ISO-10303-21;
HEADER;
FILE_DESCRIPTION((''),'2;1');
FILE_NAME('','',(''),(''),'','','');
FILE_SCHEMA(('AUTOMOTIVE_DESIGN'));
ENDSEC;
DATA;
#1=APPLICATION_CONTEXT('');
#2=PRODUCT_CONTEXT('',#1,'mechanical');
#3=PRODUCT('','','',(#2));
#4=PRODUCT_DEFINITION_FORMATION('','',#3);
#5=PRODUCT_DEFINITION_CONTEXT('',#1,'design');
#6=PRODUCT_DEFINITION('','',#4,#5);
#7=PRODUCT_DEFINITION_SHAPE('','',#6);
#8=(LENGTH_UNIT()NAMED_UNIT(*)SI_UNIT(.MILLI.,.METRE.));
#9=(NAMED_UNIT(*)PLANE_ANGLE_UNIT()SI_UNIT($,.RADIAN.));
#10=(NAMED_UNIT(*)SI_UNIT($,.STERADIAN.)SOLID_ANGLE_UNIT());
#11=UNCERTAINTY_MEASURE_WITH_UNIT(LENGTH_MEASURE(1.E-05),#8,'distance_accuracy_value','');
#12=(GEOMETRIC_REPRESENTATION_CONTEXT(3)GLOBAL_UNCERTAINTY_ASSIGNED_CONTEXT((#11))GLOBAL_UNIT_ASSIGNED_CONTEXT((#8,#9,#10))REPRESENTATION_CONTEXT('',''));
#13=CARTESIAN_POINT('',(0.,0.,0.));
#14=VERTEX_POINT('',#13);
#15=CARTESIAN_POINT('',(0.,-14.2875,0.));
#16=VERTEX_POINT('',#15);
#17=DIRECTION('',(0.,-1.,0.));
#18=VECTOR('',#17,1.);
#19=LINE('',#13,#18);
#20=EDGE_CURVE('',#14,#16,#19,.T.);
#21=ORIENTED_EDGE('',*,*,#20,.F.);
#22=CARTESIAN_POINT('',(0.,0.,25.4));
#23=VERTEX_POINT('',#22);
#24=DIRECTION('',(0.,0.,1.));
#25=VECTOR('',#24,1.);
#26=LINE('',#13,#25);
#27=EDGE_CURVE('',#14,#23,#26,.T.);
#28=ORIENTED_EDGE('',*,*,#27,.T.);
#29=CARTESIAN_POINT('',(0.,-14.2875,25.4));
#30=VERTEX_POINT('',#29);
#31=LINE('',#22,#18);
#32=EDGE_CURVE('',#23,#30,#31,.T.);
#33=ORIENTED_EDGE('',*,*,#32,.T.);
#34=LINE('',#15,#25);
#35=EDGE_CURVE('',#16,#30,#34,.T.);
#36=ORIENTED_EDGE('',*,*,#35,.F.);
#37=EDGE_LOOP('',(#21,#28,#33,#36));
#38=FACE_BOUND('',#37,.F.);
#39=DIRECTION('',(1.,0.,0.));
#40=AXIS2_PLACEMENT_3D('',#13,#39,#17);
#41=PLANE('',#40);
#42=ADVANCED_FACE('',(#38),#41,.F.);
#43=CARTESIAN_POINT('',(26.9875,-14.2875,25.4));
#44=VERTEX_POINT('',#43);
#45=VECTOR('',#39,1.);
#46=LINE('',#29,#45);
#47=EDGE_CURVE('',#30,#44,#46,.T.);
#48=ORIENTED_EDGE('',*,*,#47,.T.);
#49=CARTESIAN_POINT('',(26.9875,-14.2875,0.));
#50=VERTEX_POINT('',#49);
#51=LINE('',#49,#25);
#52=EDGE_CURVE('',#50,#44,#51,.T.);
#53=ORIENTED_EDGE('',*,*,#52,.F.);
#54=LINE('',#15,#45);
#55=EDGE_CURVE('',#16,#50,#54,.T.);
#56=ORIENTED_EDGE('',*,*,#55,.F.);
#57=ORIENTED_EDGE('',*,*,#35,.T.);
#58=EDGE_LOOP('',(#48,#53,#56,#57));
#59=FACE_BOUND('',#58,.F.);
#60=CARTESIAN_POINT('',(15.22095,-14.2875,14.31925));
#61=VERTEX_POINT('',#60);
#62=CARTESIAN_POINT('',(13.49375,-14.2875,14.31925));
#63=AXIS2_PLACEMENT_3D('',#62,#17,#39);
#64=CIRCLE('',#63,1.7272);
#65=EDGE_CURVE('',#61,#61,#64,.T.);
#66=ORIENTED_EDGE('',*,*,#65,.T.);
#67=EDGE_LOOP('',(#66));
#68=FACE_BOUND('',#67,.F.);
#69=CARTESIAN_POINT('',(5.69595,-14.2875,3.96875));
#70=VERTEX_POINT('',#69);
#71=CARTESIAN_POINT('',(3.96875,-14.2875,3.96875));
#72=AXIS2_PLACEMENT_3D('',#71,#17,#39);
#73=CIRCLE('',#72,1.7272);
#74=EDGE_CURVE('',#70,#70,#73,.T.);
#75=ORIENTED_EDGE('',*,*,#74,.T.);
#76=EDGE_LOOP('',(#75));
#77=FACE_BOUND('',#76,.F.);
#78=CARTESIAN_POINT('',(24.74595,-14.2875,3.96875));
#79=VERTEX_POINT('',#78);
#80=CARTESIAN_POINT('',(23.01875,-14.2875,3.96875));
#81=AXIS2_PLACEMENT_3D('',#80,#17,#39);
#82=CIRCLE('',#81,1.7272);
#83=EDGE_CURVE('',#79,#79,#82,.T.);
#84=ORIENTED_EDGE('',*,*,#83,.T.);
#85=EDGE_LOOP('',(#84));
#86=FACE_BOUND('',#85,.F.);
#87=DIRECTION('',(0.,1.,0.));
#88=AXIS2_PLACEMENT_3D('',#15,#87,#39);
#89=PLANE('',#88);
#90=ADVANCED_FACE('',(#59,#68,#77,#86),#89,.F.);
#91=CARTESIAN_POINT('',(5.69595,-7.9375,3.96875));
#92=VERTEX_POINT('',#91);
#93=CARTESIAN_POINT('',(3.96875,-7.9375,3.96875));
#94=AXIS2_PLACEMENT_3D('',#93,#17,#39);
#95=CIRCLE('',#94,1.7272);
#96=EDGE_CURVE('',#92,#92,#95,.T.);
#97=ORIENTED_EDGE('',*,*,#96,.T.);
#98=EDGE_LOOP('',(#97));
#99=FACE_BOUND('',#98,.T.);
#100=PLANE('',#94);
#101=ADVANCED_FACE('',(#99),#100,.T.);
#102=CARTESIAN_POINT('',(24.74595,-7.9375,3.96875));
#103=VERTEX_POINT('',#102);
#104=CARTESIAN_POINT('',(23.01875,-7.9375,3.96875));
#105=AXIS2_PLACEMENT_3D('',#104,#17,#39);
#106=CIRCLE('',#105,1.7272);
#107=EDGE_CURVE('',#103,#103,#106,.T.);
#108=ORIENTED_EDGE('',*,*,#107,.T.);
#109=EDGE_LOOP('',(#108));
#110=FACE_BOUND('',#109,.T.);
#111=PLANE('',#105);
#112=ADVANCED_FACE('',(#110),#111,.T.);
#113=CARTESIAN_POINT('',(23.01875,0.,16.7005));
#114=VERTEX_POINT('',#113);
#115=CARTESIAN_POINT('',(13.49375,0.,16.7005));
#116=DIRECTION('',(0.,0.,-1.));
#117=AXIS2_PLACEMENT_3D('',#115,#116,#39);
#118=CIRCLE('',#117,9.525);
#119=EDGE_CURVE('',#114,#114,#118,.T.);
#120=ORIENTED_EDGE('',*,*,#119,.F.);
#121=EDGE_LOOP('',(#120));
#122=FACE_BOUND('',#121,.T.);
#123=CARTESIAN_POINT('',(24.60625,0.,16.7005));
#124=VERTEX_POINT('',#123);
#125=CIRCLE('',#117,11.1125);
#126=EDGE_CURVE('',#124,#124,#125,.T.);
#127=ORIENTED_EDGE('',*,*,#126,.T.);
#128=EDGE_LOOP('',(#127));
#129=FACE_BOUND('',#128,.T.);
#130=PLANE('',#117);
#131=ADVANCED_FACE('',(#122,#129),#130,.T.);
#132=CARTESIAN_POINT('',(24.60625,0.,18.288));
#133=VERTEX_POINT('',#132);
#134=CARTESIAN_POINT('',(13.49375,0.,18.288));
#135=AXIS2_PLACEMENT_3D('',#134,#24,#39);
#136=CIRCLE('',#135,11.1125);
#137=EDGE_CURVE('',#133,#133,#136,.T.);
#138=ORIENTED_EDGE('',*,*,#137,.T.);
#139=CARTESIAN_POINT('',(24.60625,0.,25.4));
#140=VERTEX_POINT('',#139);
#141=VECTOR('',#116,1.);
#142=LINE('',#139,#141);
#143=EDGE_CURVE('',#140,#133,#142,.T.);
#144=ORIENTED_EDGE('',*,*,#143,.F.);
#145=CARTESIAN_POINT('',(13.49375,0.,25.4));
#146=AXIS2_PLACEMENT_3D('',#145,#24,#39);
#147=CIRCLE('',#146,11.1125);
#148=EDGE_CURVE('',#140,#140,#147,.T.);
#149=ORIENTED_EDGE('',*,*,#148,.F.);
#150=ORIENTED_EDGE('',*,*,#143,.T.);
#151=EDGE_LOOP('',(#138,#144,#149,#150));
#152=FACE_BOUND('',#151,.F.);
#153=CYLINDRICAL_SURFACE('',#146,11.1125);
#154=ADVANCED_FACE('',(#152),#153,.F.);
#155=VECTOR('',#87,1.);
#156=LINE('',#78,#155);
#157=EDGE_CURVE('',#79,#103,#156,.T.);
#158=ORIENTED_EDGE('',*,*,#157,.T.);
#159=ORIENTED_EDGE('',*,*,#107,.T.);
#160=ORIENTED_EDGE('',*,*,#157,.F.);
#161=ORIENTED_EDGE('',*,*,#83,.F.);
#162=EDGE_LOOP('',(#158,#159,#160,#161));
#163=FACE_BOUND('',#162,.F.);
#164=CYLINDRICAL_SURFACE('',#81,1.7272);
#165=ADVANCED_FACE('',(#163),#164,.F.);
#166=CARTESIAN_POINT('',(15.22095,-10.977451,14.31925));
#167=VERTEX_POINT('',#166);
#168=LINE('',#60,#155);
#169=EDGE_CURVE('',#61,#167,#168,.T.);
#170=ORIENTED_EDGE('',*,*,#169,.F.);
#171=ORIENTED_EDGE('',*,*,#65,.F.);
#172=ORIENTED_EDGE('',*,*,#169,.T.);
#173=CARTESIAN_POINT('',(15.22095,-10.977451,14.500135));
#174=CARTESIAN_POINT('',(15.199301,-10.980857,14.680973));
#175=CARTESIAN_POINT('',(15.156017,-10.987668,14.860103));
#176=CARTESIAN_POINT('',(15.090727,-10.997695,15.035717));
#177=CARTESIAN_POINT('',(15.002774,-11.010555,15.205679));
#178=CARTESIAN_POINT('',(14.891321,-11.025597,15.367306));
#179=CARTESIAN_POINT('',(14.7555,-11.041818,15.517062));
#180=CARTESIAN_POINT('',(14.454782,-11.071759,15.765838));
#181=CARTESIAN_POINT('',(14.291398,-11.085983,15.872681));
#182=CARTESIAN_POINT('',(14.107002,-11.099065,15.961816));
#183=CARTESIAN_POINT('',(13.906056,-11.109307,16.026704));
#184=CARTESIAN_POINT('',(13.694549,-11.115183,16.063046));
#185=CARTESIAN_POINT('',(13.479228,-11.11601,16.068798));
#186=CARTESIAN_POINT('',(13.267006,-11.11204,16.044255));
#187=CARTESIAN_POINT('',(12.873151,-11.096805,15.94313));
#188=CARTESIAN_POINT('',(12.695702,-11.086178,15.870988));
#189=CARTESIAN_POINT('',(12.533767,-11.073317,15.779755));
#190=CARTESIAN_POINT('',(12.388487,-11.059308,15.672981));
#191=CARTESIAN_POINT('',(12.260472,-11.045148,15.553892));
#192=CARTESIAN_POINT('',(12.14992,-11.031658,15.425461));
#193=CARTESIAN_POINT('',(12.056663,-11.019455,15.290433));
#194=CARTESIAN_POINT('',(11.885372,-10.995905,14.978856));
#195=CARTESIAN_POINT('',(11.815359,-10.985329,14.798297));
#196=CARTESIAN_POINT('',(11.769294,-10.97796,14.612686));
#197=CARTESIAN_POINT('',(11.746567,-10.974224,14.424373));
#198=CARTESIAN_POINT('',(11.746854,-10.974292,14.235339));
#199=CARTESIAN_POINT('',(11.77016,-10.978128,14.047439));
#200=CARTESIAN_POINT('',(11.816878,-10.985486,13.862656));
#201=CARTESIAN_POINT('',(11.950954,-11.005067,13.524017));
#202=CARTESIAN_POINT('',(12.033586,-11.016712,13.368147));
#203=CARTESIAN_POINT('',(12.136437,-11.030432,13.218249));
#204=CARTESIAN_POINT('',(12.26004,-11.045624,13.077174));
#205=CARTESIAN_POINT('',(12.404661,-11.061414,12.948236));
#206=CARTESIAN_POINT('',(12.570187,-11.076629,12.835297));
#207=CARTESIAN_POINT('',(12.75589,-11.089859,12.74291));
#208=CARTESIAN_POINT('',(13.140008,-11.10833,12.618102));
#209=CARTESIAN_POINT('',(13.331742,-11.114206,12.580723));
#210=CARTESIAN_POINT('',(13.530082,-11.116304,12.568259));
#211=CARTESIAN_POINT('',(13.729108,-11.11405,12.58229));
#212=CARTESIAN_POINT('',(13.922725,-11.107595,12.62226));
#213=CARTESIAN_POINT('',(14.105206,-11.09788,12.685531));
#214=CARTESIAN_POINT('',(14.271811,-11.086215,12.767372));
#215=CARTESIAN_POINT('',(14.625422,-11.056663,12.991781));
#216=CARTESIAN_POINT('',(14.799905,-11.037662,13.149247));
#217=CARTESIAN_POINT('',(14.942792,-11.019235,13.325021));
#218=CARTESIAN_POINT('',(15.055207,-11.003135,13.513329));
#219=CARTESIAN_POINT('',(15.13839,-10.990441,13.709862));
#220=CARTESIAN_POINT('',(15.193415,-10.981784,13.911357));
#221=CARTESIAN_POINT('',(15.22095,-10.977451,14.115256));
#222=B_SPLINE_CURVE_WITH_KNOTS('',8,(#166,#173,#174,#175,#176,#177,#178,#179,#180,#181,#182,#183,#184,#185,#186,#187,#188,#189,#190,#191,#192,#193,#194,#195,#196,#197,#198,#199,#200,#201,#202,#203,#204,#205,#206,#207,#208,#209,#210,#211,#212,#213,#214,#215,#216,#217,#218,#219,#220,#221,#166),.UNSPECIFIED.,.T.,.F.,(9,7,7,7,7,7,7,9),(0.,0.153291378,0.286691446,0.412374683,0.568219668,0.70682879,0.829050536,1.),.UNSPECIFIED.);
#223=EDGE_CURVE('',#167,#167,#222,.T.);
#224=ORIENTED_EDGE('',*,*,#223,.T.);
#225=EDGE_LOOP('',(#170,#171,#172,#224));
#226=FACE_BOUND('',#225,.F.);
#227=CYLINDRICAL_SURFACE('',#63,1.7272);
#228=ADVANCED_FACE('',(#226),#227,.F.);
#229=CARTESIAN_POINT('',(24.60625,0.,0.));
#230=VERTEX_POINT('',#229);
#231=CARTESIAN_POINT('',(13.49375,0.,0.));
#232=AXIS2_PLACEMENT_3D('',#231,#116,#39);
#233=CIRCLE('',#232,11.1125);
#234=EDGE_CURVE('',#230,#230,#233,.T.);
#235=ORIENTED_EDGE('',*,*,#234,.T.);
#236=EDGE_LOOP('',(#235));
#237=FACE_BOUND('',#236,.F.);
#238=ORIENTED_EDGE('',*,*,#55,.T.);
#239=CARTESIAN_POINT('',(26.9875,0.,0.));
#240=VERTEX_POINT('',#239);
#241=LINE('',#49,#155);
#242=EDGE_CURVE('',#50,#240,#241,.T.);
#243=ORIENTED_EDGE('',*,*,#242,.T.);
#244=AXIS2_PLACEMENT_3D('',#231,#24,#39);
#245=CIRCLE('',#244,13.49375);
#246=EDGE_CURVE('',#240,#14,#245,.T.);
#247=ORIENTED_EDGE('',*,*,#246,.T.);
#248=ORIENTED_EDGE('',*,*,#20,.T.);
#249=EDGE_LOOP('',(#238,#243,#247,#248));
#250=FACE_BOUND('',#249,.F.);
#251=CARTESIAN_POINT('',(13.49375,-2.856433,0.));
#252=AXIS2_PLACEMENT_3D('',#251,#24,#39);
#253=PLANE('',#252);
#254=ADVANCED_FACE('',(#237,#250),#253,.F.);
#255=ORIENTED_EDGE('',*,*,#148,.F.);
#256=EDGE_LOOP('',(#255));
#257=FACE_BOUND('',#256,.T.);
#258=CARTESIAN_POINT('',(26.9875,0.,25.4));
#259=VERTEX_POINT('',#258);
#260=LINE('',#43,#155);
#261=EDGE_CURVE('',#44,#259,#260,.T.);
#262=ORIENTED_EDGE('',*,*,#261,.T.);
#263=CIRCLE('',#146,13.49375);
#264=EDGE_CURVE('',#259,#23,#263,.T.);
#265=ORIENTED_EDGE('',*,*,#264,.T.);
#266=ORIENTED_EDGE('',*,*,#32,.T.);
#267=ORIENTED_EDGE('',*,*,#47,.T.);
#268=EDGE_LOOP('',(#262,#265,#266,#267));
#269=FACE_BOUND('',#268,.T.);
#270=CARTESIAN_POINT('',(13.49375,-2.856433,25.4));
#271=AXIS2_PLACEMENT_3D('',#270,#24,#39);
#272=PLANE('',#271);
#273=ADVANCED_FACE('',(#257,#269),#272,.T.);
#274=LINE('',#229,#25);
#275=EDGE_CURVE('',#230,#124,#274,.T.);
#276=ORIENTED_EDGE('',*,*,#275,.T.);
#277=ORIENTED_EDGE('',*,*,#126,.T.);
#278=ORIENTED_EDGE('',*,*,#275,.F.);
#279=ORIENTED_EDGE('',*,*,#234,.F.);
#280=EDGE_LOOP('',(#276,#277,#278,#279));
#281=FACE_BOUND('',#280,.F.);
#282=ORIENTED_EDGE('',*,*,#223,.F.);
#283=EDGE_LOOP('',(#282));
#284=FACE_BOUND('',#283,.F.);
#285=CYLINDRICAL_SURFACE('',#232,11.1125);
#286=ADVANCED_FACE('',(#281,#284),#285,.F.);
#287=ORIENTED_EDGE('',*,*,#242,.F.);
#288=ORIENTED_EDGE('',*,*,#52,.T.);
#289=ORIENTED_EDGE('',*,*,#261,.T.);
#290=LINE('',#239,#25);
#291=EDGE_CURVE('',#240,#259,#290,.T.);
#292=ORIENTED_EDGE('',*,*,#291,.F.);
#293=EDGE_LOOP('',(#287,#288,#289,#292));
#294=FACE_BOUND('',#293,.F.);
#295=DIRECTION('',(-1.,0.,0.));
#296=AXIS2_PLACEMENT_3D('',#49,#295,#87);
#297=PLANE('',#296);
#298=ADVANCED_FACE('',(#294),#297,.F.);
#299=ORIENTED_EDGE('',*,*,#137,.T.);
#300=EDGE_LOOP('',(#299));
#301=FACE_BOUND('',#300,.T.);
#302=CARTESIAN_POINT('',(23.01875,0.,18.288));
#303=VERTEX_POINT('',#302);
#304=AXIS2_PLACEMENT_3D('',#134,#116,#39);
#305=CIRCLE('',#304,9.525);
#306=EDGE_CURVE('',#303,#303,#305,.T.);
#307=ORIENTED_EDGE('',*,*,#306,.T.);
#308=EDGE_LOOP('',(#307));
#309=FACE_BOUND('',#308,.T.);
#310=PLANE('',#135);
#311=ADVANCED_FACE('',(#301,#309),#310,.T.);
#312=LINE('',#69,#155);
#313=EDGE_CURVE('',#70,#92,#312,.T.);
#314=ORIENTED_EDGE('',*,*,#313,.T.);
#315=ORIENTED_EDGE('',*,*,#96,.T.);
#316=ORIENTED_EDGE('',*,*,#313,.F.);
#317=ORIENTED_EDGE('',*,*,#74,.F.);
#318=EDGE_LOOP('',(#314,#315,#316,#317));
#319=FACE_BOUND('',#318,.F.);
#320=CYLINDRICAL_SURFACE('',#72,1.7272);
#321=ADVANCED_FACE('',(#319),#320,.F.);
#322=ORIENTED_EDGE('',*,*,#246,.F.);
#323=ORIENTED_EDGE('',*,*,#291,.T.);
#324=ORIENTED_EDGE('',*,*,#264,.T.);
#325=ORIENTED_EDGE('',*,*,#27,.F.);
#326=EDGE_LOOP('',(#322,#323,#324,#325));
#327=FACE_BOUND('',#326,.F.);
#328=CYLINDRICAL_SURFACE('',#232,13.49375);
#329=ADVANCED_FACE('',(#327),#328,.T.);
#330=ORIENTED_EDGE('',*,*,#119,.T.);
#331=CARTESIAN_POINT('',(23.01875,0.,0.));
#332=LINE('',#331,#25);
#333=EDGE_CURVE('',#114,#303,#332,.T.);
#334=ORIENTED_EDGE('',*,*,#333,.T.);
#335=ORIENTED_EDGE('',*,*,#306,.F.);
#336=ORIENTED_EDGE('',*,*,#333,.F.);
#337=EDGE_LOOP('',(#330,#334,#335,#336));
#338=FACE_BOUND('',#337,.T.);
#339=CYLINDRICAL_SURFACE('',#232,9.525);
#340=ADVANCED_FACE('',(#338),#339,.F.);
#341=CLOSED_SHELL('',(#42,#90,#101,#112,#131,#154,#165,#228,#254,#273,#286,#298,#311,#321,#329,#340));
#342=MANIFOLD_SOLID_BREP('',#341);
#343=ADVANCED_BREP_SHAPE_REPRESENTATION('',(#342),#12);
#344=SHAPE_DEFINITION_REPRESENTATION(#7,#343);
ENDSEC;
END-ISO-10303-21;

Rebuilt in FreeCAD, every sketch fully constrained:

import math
import FreeCAD as App
import Part
import Sketcher
from FreeCAD import Vector
Q = App.Units.Quantity

doc = App.newDocument("Part")
body = doc.addObject("PartDesign::Body", "Body")

# Sketch on XY plane
sketch1 = body.newObject("Sketcher::SketchObject", "Sketch")
sketch1.AttachmentSupport = (doc.getObject("XY_Plane"), [""])
sketch1.MapMode = "FlatFace"
sketch1.addGeometry([
    Part.LineSegment(Vector(0, 0, 0), Vector(0, -14, 0)),  # 0
    Part.LineSegment(Vector(0, -14, 0), Vector(27, -14, 0)),  # 1
    Part.LineSegment(Vector(27, -14, 0), Vector(27, 0, 0)),  # 2
    Part.ArcOfCircle(Part.Circle(Vector(13, 0, 0), Vector(0, 0, 1), 13), math.radians(0), math.radians(180)),  # 3
    Part.Circle(Vector(13, 0, 0), Vector(0, 0, 1), 10),  # 4
], False)
sketch1.addConstraint([
    Sketcher.Constraint("Coincident", 0, 2, 1, 1),
    Sketcher.Constraint("Coincident", 1, 2, 2, 1),
    Sketcher.Constraint("Tangent", 2, 2, 3, 1),
    Sketcher.Constraint("Tangent", 3, 2, 0, 1),
    Sketcher.Constraint("Vertical", 0),
    Sketcher.Constraint("Horizontal", 1),
    Sketcher.Constraint("Vertical", 2),
    Sketcher.Constraint("Coincident", 3, 2, -1, 1),
    Sketcher.Constraint("Coincident", 4, 3, 3, 3),
    Sketcher.Constraint("Diameter", 4, Q("0.75 in")),
    Sketcher.Constraint("Radius", 3, Q("0.53125 in")),
    Sketcher.Constraint("DistanceY", 0, 2, 0, 1, Q("0.5625 in")),
])
pad1 = body.newObject("PartDesign::Pad", "Pad")
pad1.Profile = sketch1
pad1.Length = Q("1 in")

# Sketch on XY plane
sketch2 = body.newObject("Sketcher::SketchObject", "Sketch001")
sketch2.AttachmentSupport = (doc.getObject("XY_Plane"), [""])
sketch2.MapMode = "FlatFace"
sketch2.AttachmentOffset = App.Placement(Vector(0, 0, 1 * 25.4), App.Rotation())
sketch2.addGeometry(Part.Circle(Vector(13, 0, 0), Vector(0, 0, 1), 11), False)
sketch2.addConstraint([
    Sketcher.Constraint("PointOnObject", 0, 3, -1),
    Sketcher.Constraint("Diameter", 0, Q("0.875 in")),
    Sketcher.Constraint("DistanceX", -1, 1, 0, 3, Q("0.53125 in")),
])
pocket1 = body.newObject("PartDesign::Pocket", "Pocket")
pocket1.Profile = sketch2
pocket1.Length = Q("0.28 in")

# Sketch on XY plane
sketch3 = body.newObject("Sketcher::SketchObject", "Sketch002")
sketch3.AttachmentSupport = (doc.getObject("XY_Plane"), [""])
sketch3.MapMode = "FlatFace"
sketch3.addGeometry(Part.Circle(Vector(13, 0, 0), Vector(0, 0, 1), 11), False)
sketch3.addConstraint([
    Sketcher.Constraint("PointOnObject", 0, 3, -1),
    Sketcher.Constraint("Diameter", 0, Q("0.875 in")),
    Sketcher.Constraint("DistanceX", -1, 1, 0, 3, Q("0.53125 in")),
])
pocket2 = body.newObject("PartDesign::Pocket", "Pocket001")
pocket2.Profile = sketch3
pocket2.Length = Q("0.6575 in")
pocket2.Reversed = True

# Sketch on XZ plane
sketch4 = body.newObject("Sketcher::SketchObject", "Sketch003")
sketch4.AttachmentSupport = (doc.getObject("XZ_Plane"), [""])
sketch4.MapMode = "FlatFace"
sketch4.AttachmentOffset = App.Placement(Vector(0, 0, 0.5625 * 25.4), App.Rotation())
sketch4.addGeometry([
    Part.Circle(Vector(23, 4, 0), Vector(0, 0, 1), 1.7),
    Part.Circle(Vector(4, 4, 0), Vector(0, 0, 1), 1.7),
    Part.Circle(Vector(13.5, 14.3, 0), Vector(0, 0, 1), 1.7),
], False)
sketch4.addConstraint([
    Sketcher.Constraint("Equal", 0, 1),
    Sketcher.Constraint("Equal", 1, 2),
    Sketcher.Constraint("Horizontal", 0, 3, 1, 3),
    Sketcher.Constraint("Diameter", 0, Q("0.136 in")),
    Sketcher.Constraint("DistanceX", 1, 3, 0, 3, Q("0.75 in")),
    Sketcher.Constraint("DistanceX", -1, 1, 0, 3, Q("0.90625 in")),
    Sketcher.Constraint("DistanceY", -1, 1, 0, 3, Q("0.15625 in")),
    Sketcher.Constraint("DistanceX", -1, 1, 2, 3, Q("0.53125 in")),
    Sketcher.Constraint("DistanceY", 0, 3, 2, 3, Q("0.4075 in")),
])
pocket3 = body.newObject("PartDesign::Pocket", "Pocket002")
pocket3.Profile = sketch4
pocket3.Length = Q("0.25 in")

doc.recompute()
